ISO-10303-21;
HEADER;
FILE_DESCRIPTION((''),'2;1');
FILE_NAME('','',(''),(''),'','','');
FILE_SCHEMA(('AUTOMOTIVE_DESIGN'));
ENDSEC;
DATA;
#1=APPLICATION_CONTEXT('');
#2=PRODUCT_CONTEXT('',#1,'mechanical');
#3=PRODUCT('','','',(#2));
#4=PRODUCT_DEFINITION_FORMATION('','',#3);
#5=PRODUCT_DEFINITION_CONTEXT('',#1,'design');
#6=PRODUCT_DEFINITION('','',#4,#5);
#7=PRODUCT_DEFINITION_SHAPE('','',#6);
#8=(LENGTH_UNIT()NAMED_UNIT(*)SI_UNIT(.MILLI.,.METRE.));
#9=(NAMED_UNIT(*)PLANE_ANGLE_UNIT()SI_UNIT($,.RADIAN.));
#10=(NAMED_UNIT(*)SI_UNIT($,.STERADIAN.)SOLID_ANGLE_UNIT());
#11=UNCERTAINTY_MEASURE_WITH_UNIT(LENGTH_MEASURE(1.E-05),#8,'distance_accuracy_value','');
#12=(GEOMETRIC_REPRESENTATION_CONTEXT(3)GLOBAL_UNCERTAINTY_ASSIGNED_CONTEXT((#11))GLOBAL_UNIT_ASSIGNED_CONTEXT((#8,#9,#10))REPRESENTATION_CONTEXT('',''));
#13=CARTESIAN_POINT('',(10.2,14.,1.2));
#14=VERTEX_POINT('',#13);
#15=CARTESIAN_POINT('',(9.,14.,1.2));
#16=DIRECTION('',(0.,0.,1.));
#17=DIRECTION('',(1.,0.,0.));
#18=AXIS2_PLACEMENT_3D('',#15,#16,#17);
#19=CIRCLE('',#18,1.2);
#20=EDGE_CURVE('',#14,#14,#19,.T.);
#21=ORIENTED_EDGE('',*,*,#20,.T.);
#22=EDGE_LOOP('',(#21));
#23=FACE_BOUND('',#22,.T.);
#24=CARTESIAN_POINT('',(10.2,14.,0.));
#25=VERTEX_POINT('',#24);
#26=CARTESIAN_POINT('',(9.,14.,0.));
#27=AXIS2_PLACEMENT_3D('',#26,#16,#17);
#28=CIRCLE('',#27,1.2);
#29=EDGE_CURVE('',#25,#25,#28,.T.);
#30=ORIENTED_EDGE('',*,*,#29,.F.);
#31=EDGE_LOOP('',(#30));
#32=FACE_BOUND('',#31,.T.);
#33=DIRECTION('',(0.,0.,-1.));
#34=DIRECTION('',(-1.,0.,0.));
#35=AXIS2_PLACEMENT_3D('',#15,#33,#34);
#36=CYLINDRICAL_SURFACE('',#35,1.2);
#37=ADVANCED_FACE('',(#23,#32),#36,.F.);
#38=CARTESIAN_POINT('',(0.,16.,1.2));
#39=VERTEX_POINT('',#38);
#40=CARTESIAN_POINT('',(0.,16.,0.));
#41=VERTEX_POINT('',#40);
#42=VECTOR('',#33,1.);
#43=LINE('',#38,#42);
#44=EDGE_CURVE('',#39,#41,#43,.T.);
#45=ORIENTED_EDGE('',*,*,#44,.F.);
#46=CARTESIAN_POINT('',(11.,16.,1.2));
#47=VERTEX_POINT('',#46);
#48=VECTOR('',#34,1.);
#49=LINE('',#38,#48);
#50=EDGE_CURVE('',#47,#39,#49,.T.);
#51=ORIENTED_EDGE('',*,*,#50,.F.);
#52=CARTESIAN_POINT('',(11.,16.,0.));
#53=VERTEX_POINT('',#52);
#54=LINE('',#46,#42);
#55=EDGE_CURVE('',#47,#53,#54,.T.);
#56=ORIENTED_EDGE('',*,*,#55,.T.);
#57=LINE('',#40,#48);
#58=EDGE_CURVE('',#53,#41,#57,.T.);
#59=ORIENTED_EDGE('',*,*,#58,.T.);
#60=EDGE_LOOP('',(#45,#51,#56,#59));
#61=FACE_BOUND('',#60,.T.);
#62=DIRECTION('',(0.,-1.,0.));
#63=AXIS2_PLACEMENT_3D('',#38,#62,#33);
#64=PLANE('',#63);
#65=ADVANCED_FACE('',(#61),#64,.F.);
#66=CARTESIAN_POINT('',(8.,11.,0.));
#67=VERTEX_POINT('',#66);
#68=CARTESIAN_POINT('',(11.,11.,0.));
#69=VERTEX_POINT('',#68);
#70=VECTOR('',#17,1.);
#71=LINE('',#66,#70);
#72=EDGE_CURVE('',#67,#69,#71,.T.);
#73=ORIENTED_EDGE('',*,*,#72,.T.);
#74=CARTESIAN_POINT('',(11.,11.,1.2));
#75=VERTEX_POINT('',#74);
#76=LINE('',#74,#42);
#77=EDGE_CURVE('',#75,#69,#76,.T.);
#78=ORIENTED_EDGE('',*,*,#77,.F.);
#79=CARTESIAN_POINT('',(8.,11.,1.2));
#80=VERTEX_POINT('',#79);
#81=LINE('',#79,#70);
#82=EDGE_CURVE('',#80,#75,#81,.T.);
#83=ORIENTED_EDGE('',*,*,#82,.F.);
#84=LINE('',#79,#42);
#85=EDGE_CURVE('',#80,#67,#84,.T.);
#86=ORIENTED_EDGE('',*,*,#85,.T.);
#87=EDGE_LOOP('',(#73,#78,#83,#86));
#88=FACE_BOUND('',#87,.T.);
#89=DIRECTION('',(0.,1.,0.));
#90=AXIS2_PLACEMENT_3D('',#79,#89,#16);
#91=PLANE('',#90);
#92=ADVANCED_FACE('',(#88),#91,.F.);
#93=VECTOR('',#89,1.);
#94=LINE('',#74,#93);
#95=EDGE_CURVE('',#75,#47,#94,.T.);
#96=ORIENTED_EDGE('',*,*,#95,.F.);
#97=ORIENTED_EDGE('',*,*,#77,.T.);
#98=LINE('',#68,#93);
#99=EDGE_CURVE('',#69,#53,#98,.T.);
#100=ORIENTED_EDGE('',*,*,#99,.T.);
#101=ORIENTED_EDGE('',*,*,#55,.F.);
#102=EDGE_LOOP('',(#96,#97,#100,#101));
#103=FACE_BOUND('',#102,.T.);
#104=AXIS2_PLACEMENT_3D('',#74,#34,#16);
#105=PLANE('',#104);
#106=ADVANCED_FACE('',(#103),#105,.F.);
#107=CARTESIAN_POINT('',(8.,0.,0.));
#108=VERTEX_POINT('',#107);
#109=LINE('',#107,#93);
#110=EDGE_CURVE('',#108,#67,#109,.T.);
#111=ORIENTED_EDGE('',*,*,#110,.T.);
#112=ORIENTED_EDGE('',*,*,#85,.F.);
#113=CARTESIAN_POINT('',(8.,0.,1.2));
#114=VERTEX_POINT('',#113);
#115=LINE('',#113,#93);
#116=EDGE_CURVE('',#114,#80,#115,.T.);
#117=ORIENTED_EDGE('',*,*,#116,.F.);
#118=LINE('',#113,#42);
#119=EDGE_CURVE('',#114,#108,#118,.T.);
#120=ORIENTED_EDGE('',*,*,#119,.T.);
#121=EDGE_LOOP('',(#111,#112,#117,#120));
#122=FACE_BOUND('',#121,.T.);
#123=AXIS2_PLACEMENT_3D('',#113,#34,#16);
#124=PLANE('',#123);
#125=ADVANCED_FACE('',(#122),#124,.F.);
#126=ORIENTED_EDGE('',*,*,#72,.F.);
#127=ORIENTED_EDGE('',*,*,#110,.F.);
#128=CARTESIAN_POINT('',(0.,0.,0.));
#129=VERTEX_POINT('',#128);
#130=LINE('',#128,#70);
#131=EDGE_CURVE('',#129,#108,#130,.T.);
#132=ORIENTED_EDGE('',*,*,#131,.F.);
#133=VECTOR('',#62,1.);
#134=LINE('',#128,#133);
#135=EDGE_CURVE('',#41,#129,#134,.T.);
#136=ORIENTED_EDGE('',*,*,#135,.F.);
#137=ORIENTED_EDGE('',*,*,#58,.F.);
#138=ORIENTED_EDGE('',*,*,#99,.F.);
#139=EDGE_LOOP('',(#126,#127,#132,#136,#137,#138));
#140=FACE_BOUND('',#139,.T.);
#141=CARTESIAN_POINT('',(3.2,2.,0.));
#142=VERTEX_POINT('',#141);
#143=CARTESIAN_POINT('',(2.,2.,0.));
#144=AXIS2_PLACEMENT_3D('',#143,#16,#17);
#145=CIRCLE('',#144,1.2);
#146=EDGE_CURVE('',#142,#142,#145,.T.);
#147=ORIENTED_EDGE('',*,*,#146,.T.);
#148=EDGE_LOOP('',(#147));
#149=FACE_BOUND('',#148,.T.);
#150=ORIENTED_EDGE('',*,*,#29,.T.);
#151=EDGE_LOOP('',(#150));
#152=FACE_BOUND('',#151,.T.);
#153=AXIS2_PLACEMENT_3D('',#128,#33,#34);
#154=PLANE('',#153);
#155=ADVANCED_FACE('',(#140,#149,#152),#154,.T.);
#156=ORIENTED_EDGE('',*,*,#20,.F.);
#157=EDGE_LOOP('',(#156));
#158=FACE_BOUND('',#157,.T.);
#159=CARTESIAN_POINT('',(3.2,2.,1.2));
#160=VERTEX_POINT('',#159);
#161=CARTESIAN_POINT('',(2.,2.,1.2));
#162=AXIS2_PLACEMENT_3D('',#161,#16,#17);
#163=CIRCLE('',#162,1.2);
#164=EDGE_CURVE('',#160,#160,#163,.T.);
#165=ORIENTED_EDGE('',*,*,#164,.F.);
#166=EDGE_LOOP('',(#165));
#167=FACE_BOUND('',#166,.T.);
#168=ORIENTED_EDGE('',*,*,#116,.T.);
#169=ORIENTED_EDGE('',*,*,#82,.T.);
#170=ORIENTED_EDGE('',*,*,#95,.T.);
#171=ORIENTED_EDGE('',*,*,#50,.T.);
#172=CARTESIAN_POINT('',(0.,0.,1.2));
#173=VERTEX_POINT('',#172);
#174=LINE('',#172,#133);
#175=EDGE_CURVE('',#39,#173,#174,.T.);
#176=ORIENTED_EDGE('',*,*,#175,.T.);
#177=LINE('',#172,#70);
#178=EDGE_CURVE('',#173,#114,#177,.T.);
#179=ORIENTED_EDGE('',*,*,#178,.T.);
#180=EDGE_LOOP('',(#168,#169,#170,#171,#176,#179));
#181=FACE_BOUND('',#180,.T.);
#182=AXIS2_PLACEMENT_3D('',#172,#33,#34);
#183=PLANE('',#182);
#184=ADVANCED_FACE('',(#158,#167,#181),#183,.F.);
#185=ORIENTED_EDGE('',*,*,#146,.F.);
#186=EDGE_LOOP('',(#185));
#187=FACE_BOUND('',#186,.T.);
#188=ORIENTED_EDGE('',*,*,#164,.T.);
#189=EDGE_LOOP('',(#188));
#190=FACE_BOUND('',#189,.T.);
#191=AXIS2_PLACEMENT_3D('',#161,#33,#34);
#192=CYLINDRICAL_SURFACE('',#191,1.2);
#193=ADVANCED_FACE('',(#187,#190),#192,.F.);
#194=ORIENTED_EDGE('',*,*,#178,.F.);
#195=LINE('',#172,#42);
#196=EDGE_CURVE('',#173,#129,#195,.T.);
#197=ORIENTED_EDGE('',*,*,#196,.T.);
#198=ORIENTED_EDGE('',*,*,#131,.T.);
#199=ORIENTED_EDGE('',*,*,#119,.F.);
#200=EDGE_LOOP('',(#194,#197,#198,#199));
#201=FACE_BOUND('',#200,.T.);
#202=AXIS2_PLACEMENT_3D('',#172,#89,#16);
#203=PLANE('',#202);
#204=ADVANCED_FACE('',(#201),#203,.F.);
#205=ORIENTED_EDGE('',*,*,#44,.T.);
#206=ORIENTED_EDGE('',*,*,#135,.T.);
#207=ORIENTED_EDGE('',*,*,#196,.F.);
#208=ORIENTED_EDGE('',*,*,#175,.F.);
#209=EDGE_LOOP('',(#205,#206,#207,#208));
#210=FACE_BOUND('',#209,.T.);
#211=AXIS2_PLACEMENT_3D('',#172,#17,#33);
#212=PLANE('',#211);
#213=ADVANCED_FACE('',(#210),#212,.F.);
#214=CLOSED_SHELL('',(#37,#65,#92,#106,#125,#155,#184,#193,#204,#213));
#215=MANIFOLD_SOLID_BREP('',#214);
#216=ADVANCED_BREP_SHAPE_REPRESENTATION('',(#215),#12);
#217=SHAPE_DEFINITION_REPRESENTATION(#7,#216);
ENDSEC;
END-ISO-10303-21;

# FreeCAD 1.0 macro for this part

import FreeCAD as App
import Part
import Sketcher


def add_polygon(sketch, points):
    """Adds a closed chain of lines whose ends are joined by coincident constraints."""
    first, n = sketch.GeometryCount, len(points)
    for a, b in zip(points, points[1:] + points[:1]):
        sketch.addGeometry(Part.LineSegment(App.Vector(*a, 0), App.Vector(*b, 0)), False)
    for i in range(n):
        sketch.addConstraint(Sketcher.Constraint("Coincident", first + i, 2, first + (i + 1) % n, 1))

doc = App.newDocument("Part")
params = doc.addObject("Spreadsheet::Sheet", "Params")
for row, (alias, value) in enumerate([
    ("sketch1_diameter", "2.4 mm"),
    ("sketch1_width", "3 mm"),
    ("sketch1_width2", "11 mm"),
    ("sketch1_height", "5 mm"),
    ("pad1_length", "1.2 mm"),
], start=1):
    params.set(f"A{row}", alias)
    params.set(f"B{row}", "=" + value)
    params.setAlias(f"B{row}", alias)

body = doc.addObject("PartDesign::Body", "Body")

# Sketch on XY plane
sketch1 = body.newObject("Sketcher::SketchObject", "Sketch")
sketch1.AttachmentSupport = (doc.getObject("XY_Plane"), [""])
sketch1.MapMode = "FlatFace"
add_polygon(sketch1, [(8, 0), (8, 11), (11, 11), (11, 16), (0, 16), (0, 0)])  # lines 0-5
sketch1.addGeometry(Part.Circle(App.Vector(2, 2, 0), App.Vector(0, 0, 1), 1.2), False)  # 6
sketch1.addGeometry(Part.Circle(App.Vector(9, 14, 0), App.Vector(0, 0, 1), 1.2), False)  # 7
sketch1.addConstraint([
    Sketcher.Constraint("Vertical", 0),
    Sketcher.Constraint("Horizontal", 1),
    Sketcher.Constraint("Vertical", 2),
    Sketcher.Constraint("Horizontal", 3),
    Sketcher.Constraint("Vertical", 4),
    Sketcher.Constraint("Horizontal", 5),
    Sketcher.Constraint("Coincident", 4, 2, -1, 1),
    Sketcher.Constraint("Equal", 6, 7),
    Sketcher.Constraint("Equal", 3, 0),
    Sketcher.Constraint("Diameter", 6, 2.4),
    Sketcher.Constraint("DistanceX", 1, 1, 1, 2, 3.0),
    Sketcher.Constraint("DistanceX", 3, 2, 3, 1, 11.0),
    Sketcher.Constraint("DistanceY", 2, 1, 2, 2, 5.0),
    Sketcher.Constraint("DistanceX", -1, 1, 6, 3, 2.0),
    Sketcher.Constraint("DistanceY", -1, 1, 6, 3, 2.0),
    Sketcher.Constraint("DistanceX", -1, 1, 7, 3, 9.0),
    Sketcher.Constraint("DistanceY", -1, 1, 7, 3, 14.0),
])
sketch1.setExpression("Constraints[15]", "Params.sketch1_diameter")
sketch1.setExpression("Constraints[16]", "Params.sketch1_width")
sketch1.setExpression("Constraints[17]", "Params.sketch1_width2")
sketch1.setExpression("Constraints[18]", "Params.sketch1_height")
pad1 = body.newObject("PartDesign::Pad", "Pad")
pad1.Profile = sketch1
pad1.setExpression("Length", "Params.pad1_length")

doc.recompute()
